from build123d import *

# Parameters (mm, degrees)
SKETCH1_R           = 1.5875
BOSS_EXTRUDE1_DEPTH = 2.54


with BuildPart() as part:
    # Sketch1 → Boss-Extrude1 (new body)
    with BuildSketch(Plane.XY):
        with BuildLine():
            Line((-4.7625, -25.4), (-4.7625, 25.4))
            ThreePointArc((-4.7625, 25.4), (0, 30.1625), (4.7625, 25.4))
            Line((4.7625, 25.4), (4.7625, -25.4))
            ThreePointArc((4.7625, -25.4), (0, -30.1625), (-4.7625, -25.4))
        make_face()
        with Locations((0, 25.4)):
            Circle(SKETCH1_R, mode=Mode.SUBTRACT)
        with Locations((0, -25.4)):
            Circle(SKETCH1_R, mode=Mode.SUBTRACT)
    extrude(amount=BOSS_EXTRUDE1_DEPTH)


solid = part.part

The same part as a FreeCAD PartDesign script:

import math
import FreeCAD as App
import Part
import Sketcher
Q = App.Units.Quantity

doc = App.newDocument("Part")
body = doc.addObject("PartDesign::Body", "Body")

# Sketch on XY plane
sketch1 = body.newObject("Sketcher::SketchObject", "Sketch")
sketch1.AttachmentSupport = (doc.getObject("XY_Plane"), [""])
sketch1.MapMode = "FlatFace"
sketch1.addGeometry(Part.LineSegment(App.Vector(-4.8, 25.4, 0), App.Vector(-4.8, -25.4, 0)), False)
sketch1.addGeometry(Part.ArcOfCircle(Part.Circle(App.Vector(0, -25.4, 0), App.Vector(0, 0, 1), 4.8), math.radians(180), math.radians(360)), False)
sketch1.addGeometry(Part.LineSegment(App.Vector(4.8, -25.4, 0), App.Vector(4.8, 25.4, 0)), False)
sketch1.addGeometry(Part.ArcOfCircle(Part.Circle(App.Vector(0, 25.4, 0), App.Vector(0, 0, 1), 4.8), math.radians(0), math.radians(180)), False)
sketch1.addGeometry(Part.Circle(App.Vector(0, -25.4, 0), App.Vector(0, 0, 1), 1.6), False)
sketch1.addGeometry(Part.Circle(App.Vector(0, 25.4, 0), App.Vector(0, 0, 1), 1.6), False)
sketch1.addConstraint(Sketcher.Constraint("Tangent", 0, 2, 1, 1))
sketch1.addConstraint(Sketcher.Constraint("Tangent", 1, 2, 2, 1))
sketch1.addConstraint(Sketcher.Constraint("Tangent", 2, 2, 3, 1))
sketch1.addConstraint(Sketcher.Constraint("Tangent", 3, 2, 0, 1))
sketch1.addConstraint(Sketcher.Constraint("Vertical", 0))
sketch1.addConstraint(Sketcher.Constraint("Vertical", 2))
sketch1.addConstraint(Sketcher.Constraint("Coincident", 4, 3, 1, 3))
sketch1.addConstraint(Sketcher.Constraint("Coincident", 5, 3, 3, 3))
sketch1.addConstraint(Sketcher.Constraint("Equal", 4, 5))
sketch1.addConstraint(Sketcher.Constraint("Symmetric", 1, 3, 3, 3, -1, 1))
sketch1.addConstraint(Sketcher.Constraint("DistanceY", 0, 2, 0, 1, Q("2 in")))
sketch1.addConstraint(Sketcher.Constraint("Diameter", 4, Q("0.125 in")))
sketch1.addConstraint(Sketcher.Constraint("Radius", 1, Q("0.1875 in")))
pad1 = body.newObject("PartDesign::Pad", "Pad")
pad1.Profile = sketch1
pad1.Length = Q("0.1 in")

doc.recompute()
